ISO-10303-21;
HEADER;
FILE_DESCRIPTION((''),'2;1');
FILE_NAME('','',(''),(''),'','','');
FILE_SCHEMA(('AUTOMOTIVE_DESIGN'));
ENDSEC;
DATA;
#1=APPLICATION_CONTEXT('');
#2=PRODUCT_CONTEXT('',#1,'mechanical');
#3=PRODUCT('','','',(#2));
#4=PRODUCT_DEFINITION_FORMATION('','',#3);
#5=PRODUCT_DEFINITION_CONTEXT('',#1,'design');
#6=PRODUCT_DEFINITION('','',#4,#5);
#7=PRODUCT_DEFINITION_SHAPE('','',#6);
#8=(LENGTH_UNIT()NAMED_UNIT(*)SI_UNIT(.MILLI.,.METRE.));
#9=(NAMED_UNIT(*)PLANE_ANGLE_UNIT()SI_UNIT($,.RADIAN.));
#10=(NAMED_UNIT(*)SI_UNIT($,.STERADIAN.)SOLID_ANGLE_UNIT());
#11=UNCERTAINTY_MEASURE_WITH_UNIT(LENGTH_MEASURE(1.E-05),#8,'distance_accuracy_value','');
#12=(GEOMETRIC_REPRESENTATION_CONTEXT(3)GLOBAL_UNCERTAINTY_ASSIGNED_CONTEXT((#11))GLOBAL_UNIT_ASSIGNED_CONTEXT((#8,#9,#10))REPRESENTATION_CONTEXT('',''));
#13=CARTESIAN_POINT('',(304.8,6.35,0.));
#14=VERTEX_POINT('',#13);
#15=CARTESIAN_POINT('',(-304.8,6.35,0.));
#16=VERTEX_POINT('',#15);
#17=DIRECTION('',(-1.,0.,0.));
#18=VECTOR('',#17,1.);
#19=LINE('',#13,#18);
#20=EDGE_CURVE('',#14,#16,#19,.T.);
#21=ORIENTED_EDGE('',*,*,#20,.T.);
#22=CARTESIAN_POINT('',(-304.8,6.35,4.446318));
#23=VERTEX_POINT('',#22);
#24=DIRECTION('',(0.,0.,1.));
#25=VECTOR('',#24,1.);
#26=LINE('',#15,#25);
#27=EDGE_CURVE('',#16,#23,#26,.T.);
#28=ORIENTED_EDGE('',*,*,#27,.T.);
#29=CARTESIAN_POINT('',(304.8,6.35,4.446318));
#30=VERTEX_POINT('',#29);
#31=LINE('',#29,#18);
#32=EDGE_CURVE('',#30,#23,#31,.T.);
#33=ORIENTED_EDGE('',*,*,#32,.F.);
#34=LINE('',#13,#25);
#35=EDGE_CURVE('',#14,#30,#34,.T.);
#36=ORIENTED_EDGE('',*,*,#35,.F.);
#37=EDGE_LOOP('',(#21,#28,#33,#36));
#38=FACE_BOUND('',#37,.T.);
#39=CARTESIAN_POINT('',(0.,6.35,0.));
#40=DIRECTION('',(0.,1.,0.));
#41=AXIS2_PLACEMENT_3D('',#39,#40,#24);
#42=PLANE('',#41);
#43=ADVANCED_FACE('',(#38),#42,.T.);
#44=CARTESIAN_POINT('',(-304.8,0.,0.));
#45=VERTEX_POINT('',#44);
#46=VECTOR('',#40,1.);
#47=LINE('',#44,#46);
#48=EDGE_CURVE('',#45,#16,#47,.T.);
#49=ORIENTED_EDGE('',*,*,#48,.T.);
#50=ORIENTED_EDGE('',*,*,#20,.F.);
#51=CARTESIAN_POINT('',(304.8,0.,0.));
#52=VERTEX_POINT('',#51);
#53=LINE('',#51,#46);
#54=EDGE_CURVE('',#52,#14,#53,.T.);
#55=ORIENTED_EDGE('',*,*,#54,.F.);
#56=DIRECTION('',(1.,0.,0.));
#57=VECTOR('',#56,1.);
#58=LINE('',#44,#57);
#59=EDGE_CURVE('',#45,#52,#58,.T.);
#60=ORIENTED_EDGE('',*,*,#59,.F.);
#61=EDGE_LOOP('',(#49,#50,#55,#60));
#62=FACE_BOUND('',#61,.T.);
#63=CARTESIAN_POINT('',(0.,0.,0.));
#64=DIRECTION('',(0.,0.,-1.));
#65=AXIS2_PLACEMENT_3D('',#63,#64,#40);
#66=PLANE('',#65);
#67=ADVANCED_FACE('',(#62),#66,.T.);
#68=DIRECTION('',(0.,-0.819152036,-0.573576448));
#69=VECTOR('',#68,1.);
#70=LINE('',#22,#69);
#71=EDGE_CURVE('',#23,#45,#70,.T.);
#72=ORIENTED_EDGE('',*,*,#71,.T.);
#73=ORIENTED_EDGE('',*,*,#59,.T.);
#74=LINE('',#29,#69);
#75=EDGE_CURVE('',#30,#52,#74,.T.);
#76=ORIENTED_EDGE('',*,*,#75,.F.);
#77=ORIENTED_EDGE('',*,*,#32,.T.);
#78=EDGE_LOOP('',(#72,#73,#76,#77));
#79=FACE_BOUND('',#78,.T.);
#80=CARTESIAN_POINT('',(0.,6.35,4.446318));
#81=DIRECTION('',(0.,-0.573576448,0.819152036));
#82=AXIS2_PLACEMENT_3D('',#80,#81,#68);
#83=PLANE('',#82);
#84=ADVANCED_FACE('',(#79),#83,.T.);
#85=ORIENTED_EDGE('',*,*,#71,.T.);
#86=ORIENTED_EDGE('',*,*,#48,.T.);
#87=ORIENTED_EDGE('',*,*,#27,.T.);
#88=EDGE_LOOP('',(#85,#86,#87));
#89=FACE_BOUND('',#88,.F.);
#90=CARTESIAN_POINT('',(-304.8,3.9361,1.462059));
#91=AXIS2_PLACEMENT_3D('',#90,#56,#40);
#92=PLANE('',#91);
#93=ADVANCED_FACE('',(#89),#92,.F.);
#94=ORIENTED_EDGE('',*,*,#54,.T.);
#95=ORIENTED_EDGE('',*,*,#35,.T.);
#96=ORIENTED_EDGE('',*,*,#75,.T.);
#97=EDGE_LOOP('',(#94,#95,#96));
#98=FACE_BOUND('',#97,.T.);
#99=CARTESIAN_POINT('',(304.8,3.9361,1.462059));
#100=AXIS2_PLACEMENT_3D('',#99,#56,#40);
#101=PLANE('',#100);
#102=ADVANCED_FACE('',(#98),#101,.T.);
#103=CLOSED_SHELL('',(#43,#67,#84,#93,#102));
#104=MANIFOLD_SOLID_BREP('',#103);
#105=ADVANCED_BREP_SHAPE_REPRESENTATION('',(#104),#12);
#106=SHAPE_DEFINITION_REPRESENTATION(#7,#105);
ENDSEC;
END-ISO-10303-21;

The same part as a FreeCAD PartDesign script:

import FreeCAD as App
import Part
import Sketcher

V = App.Vector
Q = App.Units.Quantity

doc = App.newDocument("Part")
body = doc.addObject("PartDesign::Body", "Body")

# Sketch on YZ plane
sketch1 = body.newObject("Sketcher::SketchObject", "Sketch")
sketch1.AttachmentSupport = (doc.getObject("YZ_Plane"), [""])
sketch1.MapMode = "FlatFace"
sketch1.addGeometry(Part.LineSegment(V(6.3, 4.4, 0), V(0, 0, 0)), False)
sketch1.addGeometry(Part.LineSegment(V(0, 0, 0), V(6.3, 0, 0)), False)
sketch1.addGeometry(Part.LineSegment(V(6.3, 0, 0), V(6.3, 4.4, 0)), False)
sketch1.addConstraint(Sketcher.Constraint("Coincident", 0, 2, 1, 1))
sketch1.addConstraint(Sketcher.Constraint("Coincident", 1, 2, 2, 1))
sketch1.addConstraint(Sketcher.Constraint("Coincident", 2, 2, 0, 1))
sketch1.addConstraint(Sketcher.Constraint("Horizontal", 1))
sketch1.addConstraint(Sketcher.Constraint("Vertical", 2))
sketch1.addConstraint(Sketcher.Constraint("Coincident", 0, 2, -1, 1))
sketch1.addConstraint(Sketcher.Constraint("Angle", 0, Q("-144.999999 deg")))
sketch1.addConstraint(Sketcher.Constraint("DistanceX", 1, 1, 1, 2, Q("0.25 in")))
pad1 = body.newObject("PartDesign::Pad", "Pad")
pad1.Profile = sketch1
pad1.Length = Q("24 in")
pad1.Midplane = True

doc.recompute()
